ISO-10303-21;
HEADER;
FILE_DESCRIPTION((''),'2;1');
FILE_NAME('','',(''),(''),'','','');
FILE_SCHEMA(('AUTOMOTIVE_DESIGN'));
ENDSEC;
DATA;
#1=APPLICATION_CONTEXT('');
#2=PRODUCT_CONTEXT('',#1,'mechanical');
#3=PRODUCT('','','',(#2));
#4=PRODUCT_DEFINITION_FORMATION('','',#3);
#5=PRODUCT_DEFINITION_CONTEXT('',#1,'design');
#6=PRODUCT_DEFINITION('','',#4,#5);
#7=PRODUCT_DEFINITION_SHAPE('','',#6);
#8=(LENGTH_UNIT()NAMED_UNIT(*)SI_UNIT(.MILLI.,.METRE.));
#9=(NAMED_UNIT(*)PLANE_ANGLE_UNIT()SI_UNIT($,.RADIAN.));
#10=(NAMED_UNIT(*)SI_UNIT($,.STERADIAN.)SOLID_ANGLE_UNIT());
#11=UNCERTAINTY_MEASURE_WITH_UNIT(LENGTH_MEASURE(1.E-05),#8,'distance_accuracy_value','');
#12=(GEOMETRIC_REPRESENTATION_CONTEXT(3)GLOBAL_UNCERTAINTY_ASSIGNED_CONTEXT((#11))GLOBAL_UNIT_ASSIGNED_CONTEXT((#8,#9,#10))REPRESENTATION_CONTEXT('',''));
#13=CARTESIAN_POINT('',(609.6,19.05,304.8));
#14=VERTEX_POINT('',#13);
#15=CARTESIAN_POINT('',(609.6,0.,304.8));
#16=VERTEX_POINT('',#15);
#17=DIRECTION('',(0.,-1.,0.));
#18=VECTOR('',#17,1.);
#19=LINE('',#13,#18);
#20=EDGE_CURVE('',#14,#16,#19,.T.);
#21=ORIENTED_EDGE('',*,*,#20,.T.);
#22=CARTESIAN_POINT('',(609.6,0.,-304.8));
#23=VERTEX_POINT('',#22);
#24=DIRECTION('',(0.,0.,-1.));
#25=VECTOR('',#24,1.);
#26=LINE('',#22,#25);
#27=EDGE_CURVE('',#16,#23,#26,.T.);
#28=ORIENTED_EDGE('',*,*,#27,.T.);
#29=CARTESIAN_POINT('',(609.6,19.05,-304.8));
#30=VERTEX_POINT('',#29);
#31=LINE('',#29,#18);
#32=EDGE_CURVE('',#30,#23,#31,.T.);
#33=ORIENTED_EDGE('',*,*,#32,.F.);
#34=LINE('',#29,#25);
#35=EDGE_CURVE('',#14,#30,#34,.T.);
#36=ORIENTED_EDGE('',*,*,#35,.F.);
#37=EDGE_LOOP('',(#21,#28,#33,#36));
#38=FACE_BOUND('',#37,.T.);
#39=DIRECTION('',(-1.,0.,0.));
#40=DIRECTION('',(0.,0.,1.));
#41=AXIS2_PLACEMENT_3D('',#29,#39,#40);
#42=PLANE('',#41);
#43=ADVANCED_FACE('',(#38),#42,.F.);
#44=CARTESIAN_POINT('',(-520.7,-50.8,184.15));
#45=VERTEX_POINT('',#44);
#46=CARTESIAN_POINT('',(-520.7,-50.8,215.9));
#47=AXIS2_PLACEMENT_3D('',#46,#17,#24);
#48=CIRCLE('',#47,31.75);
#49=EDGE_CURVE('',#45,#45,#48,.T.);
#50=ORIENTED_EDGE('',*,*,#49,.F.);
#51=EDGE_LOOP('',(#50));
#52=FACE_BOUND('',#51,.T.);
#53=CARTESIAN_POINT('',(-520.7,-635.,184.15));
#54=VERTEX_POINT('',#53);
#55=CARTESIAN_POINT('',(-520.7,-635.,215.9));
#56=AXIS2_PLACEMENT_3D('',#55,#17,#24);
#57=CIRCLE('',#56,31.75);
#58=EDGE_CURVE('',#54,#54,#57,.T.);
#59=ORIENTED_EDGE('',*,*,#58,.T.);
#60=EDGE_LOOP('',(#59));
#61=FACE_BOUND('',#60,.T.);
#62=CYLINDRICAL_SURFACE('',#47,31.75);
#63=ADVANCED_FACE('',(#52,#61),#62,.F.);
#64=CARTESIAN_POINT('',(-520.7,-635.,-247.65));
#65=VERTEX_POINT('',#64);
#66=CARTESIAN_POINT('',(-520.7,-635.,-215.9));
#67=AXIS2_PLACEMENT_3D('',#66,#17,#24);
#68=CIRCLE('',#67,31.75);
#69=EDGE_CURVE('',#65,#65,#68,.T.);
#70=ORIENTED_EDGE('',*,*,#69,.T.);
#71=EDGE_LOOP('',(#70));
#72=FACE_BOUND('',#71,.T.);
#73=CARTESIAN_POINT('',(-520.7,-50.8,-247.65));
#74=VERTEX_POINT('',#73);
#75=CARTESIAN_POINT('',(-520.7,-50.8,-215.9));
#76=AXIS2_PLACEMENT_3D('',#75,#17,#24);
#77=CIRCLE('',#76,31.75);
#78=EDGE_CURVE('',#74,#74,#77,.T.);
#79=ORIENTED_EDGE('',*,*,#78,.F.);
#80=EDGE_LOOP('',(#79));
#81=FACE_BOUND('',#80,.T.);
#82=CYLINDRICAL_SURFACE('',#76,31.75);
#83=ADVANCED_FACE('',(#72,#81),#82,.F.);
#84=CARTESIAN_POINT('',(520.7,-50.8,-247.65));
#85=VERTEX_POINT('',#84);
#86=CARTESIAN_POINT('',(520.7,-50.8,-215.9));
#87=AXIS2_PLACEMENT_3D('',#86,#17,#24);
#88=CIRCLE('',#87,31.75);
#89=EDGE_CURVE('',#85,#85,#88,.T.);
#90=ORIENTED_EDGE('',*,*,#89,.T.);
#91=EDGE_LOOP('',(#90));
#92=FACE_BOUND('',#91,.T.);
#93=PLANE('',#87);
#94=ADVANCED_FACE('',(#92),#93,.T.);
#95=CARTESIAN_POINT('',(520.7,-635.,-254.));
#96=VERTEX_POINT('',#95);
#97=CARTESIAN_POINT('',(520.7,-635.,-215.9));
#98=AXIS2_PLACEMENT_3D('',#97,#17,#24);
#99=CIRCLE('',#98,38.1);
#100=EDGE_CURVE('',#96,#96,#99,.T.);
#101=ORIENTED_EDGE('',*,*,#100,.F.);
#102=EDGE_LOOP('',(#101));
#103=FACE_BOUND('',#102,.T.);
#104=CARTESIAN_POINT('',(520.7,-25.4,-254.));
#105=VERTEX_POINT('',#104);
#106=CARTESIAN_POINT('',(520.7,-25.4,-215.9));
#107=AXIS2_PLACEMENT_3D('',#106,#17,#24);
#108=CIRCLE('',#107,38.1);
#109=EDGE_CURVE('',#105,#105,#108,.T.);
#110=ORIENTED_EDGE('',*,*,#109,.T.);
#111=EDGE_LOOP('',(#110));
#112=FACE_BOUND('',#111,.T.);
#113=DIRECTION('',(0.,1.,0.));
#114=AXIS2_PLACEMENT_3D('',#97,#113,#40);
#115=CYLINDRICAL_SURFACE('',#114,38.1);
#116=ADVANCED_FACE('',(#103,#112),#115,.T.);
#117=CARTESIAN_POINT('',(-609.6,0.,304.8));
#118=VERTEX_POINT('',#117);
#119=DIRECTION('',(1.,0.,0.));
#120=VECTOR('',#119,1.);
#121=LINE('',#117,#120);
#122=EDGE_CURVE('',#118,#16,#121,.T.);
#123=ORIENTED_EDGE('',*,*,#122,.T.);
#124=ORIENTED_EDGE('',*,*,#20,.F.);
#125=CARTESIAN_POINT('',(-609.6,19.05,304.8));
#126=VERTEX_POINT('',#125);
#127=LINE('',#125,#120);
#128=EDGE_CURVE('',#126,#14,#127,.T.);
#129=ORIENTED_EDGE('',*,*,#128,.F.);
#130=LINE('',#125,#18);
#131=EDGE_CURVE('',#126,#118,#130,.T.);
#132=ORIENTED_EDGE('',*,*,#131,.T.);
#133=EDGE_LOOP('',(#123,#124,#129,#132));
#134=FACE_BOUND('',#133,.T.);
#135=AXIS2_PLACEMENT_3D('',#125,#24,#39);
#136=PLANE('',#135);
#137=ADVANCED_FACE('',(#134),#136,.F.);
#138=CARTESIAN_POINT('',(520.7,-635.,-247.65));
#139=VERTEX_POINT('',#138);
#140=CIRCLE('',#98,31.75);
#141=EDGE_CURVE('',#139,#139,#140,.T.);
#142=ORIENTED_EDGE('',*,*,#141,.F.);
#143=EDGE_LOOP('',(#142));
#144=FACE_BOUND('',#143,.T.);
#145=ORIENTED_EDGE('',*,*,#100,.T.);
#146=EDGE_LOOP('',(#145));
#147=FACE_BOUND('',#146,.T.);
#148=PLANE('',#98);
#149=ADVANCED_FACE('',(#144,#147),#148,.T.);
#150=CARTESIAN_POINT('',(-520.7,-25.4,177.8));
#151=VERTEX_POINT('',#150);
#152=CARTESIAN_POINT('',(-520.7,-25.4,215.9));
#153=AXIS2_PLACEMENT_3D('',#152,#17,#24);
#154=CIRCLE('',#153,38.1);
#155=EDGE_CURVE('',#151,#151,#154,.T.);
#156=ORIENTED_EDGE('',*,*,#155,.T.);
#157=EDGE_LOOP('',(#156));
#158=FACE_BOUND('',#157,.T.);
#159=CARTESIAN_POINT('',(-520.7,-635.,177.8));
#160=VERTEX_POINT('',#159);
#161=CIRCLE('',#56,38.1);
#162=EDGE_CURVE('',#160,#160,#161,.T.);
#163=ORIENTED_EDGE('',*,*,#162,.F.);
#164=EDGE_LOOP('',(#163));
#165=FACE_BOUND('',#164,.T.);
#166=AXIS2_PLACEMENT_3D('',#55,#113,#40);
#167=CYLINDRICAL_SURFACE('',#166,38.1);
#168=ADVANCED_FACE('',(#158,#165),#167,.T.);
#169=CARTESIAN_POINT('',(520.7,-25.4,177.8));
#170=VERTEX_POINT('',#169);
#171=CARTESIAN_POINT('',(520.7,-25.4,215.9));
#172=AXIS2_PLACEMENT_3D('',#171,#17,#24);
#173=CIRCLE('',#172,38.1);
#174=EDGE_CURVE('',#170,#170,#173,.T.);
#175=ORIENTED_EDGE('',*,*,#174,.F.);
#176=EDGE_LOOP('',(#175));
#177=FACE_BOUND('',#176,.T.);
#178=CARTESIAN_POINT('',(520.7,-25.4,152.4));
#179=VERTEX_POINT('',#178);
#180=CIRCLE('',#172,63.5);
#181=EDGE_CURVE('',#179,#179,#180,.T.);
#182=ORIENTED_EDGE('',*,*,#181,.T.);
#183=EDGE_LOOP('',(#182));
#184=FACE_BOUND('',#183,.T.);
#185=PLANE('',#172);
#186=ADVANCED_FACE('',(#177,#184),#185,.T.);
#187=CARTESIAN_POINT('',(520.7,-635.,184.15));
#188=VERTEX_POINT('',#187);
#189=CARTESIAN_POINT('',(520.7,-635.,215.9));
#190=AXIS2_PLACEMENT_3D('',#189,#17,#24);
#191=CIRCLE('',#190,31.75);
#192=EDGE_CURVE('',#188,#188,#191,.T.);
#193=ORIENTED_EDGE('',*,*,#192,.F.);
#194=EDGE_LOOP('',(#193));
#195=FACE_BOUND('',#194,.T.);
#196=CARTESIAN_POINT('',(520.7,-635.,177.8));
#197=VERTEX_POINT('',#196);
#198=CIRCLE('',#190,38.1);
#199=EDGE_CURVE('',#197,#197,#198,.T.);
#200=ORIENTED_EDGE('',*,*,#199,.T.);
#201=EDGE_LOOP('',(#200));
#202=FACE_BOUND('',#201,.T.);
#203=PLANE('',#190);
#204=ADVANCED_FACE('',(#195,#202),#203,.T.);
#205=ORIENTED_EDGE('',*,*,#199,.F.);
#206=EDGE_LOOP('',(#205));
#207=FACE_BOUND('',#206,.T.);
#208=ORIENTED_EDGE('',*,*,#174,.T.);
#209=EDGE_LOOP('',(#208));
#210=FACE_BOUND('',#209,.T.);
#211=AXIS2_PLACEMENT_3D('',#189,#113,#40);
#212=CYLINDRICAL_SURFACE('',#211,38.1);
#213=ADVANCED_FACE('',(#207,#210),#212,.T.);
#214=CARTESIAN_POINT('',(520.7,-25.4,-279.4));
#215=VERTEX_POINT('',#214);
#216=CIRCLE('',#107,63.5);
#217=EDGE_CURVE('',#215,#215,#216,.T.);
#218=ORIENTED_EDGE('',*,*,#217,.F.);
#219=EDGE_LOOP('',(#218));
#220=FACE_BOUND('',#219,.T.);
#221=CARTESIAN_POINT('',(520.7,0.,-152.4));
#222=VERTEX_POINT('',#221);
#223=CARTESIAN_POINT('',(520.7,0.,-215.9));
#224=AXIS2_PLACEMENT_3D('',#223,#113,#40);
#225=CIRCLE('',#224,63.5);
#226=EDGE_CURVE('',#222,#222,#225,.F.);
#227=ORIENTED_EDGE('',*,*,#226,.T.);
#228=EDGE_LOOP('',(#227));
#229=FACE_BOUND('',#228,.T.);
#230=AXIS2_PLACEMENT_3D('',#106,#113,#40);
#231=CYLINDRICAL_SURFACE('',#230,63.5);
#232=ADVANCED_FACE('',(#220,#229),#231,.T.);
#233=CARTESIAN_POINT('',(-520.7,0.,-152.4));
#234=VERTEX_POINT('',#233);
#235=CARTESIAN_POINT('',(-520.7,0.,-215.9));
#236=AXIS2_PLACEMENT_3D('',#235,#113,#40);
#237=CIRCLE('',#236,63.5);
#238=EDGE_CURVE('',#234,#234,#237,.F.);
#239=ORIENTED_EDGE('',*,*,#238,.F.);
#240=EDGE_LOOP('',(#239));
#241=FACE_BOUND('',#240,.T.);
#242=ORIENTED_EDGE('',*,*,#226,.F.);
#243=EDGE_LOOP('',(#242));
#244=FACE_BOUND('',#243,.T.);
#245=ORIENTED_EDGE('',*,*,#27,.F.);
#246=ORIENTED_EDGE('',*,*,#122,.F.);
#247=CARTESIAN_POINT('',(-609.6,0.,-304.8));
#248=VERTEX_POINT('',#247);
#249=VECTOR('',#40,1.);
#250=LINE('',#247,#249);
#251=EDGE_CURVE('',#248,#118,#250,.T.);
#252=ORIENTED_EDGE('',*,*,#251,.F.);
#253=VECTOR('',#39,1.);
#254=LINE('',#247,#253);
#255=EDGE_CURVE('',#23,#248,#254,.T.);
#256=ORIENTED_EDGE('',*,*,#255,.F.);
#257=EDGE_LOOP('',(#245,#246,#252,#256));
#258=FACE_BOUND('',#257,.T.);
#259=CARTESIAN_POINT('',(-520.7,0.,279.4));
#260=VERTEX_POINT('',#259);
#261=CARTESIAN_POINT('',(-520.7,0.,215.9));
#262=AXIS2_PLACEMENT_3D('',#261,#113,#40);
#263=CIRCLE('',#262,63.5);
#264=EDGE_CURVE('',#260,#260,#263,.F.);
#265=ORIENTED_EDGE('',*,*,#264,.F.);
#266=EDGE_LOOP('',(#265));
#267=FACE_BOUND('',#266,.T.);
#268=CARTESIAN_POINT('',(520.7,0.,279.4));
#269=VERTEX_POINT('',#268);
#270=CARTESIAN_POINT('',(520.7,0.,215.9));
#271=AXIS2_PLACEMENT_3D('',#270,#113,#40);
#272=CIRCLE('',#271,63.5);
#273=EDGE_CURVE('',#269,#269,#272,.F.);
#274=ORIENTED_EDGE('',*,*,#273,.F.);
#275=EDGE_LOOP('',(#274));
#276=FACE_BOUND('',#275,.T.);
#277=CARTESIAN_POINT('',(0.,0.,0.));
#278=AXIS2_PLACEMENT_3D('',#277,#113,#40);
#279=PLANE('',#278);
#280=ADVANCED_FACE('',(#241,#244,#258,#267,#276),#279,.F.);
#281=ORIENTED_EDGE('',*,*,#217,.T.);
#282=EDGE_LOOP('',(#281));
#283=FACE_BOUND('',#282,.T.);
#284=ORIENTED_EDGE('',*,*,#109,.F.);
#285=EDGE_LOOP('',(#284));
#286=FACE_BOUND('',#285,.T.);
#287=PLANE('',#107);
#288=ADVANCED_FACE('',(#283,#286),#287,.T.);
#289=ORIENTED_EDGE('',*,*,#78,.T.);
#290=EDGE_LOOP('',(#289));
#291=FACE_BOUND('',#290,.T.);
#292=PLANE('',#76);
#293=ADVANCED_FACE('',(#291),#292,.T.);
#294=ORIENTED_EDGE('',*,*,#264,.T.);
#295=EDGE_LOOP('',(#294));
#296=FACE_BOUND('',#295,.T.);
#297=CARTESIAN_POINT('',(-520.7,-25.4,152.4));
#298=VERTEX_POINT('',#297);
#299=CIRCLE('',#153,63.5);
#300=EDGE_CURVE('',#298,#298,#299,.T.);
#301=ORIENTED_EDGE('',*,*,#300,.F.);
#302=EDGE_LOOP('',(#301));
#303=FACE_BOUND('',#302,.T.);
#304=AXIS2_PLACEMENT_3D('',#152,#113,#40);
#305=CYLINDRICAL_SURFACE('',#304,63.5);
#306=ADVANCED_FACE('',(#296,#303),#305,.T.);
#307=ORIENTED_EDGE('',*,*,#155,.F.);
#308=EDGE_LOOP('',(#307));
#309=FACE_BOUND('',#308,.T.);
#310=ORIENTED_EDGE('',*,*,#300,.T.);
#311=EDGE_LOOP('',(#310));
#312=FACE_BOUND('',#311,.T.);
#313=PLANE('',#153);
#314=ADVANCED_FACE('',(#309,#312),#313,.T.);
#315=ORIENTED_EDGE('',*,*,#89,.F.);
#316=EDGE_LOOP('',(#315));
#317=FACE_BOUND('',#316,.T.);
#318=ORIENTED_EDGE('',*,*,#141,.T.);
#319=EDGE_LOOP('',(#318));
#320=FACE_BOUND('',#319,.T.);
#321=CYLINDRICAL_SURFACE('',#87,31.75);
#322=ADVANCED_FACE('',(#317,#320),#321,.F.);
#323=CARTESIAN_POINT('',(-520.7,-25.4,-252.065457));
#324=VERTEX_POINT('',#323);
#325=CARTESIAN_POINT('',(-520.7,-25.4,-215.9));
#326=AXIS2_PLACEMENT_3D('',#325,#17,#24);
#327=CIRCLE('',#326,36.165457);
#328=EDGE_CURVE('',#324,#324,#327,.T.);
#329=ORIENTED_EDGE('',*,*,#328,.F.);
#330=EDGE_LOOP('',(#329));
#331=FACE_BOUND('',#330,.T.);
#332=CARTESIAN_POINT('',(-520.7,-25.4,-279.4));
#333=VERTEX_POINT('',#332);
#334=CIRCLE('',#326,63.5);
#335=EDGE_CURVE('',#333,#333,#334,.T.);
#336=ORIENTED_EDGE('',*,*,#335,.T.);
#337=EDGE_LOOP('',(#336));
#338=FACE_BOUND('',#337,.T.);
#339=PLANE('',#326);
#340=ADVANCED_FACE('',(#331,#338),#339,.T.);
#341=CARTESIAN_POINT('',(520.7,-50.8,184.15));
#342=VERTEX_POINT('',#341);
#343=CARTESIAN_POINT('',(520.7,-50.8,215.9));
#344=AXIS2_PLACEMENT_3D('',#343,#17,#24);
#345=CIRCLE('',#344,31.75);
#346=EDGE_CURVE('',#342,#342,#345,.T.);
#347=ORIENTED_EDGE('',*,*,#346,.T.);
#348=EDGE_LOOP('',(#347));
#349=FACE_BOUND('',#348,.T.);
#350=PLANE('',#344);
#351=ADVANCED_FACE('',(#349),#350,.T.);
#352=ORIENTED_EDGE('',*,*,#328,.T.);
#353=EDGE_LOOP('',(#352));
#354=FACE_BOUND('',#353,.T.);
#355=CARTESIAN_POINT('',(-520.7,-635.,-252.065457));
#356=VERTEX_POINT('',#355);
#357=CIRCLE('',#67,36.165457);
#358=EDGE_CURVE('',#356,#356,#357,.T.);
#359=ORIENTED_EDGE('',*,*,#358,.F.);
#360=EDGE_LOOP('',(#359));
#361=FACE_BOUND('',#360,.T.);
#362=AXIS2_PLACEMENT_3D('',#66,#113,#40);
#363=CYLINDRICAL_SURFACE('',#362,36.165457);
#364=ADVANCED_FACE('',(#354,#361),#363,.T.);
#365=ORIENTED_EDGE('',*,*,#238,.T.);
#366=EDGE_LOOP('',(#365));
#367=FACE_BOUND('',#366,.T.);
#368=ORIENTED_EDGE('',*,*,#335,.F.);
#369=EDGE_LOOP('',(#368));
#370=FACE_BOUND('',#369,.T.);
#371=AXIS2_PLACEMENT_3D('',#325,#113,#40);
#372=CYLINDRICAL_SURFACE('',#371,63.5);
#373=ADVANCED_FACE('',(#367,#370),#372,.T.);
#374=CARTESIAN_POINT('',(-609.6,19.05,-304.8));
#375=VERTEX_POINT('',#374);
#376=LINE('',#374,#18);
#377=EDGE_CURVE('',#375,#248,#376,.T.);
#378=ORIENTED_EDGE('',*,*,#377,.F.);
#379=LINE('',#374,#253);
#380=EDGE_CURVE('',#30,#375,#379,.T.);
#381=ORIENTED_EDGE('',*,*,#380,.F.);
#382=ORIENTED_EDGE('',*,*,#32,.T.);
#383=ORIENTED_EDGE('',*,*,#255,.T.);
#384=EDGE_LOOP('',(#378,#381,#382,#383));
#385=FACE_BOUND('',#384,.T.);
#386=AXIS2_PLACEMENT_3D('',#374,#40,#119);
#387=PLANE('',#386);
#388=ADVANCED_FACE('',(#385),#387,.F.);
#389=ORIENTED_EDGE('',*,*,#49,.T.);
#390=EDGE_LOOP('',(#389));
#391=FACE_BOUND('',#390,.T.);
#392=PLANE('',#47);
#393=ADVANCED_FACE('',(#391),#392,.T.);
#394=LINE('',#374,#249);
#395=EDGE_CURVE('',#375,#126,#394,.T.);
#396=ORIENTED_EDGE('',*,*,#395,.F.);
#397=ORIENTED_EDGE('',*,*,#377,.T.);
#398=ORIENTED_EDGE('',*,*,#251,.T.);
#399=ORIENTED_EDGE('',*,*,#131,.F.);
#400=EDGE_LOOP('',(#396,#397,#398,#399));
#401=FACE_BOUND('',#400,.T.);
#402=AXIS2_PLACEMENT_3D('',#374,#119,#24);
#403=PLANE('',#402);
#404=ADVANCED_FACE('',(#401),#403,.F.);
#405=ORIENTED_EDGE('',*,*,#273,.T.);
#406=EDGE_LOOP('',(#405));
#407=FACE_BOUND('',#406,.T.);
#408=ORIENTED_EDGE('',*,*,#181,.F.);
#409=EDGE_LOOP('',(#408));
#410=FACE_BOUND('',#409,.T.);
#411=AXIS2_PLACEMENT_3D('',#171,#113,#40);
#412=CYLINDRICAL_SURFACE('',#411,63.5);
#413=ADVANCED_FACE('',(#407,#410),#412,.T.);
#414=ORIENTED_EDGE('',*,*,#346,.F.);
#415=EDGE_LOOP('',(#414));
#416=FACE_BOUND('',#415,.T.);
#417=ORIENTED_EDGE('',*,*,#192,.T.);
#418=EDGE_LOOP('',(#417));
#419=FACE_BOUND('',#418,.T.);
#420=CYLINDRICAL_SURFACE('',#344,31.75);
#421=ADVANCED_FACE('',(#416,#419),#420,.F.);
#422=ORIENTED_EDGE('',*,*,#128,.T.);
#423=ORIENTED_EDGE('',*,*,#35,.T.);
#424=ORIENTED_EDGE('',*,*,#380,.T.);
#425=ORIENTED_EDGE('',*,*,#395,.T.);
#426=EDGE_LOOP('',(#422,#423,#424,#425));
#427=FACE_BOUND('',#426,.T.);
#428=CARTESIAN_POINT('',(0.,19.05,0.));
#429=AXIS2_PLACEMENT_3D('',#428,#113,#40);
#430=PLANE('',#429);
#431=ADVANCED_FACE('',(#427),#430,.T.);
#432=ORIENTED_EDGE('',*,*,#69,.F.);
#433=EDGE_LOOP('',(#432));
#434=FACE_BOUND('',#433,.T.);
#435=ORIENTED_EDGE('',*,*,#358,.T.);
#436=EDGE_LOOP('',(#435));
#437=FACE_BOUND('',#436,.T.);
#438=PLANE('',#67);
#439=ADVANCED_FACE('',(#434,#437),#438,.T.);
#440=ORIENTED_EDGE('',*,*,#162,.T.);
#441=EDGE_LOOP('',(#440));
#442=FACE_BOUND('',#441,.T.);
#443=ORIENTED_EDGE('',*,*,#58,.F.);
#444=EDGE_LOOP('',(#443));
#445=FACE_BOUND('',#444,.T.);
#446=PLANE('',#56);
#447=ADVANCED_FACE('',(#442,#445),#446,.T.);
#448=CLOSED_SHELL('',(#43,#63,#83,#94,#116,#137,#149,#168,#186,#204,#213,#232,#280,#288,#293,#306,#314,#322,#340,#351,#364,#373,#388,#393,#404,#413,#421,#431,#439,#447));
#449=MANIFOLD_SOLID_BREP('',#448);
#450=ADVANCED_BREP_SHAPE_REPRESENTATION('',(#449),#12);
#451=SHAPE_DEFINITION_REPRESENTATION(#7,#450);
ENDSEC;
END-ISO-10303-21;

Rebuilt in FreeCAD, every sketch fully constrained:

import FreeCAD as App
import Part
import Sketcher
from FreeCAD import Vector
Q = App.Units.Quantity

doc = App.newDocument("Part")
body = doc.addObject("PartDesign::Body", "Body")

sketch1 = body.newObject("Sketcher::SketchObject", "Sketch")
sketch1.AttachmentSupport = (doc.getObject("XZ_Plane"), [""])
sketch1.MapMode = "FlatFace"
sketch1.addGeometry([
    Part.LineSegment(Vector(-610, -305, 0), Vector(-610, 305, 0)),
    Part.LineSegment(Vector(-610, 305, 0), Vector(610, 305, 0)),
    Part.LineSegment(Vector(610, 305, 0), Vector(610, -305, 0)),
    Part.LineSegment(Vector(610, -305, 0), Vector(-610, -305, 0)),
], False)
sketch1.addConstraint([
    Sketcher.Constraint("Coincident", 0, 2, 1, 1),
    Sketcher.Constraint("Coincident", 1, 2, 2, 1),
    Sketcher.Constraint("Coincident", 2, 2, 3, 1),
    Sketcher.Constraint("Coincident", 3, 2, 0, 1),
    Sketcher.Constraint("Vertical", 0),
    Sketcher.Constraint("Horizontal", 1),
    Sketcher.Constraint("Vertical", 2),
    Sketcher.Constraint("Horizontal", 3),
    Sketcher.Constraint("Symmetric", 0, 2, 2, 2, -1, 1),
    Sketcher.Constraint("DistanceX", 1, 1, 1, 2, Q("48 in")),
    Sketcher.Constraint("DistanceY", 0, 1, 0, 2, Q("24 in")),
])
pad1 = body.newObject("PartDesign::Pad", "Pad")
pad1.Profile = sketch1
pad1.Length = Q("0.75 in")
pad1.Reversed = True

sketch2 = body.newObject("Sketcher::SketchObject", "Sketch001")
sketch2.AttachmentSupport = (doc.getObject("XZ_Plane"), [""])
sketch2.MapMode = "FlatFace"
sketch2.addGeometry([
    Part.Circle(Vector(-521, 216, 0), Vector(0, 0, 1), 64),
    Part.Circle(Vector(-521, -216, 0), Vector(0, 0, 1), 64),
    Part.Circle(Vector(521, 216, 0), Vector(0, 0, 1), 64),
    Part.Circle(Vector(521, -216, 0), Vector(0, 0, 1), 64),
], False)
sketch2.addConstraint([
    Sketcher.Constraint("Equal", 0, 1),
    Sketcher.Constraint("Equal", 1, 2),
    Sketcher.Constraint("Equal", 2, 3),
    Sketcher.Constraint("Symmetric", 1, 3, 2, 3, -1, 1),
    Sketcher.Constraint("Symmetric", 0, 3, 3, 3, -1, 1),
    Sketcher.Constraint("Symmetric", 0, 3, 2, 3, -2),
    Sketcher.Constraint("Diameter", 0, Q("5 in")),
    Sketcher.Constraint("DistanceY", 1, 3, 0, 3, Q("17 in")),
    Sketcher.Constraint("DistanceX", 0, 3, 2, 3, Q("41 in")),
])
pad2 = body.newObject("PartDesign::Pad", "Pad001")
pad2.Profile = sketch2
pad2.Length = Q("1 in")

sketch3 = body.newObject("Sketcher::SketchObject", "Sketch002")
sketch3.AttachmentSupport = (doc.getObject("XZ_Plane"), [""])
sketch3.MapMode = "FlatFace"
sketch3.AttachmentOffset = App.Placement(Vector(0, 0, 1 * 25.4), App.Rotation())
sketch3.addGeometry([
    Part.Circle(Vector(-521, 216, 0), Vector(0, 0, 1), 38),
    Part.Circle(Vector(-521, -216, 0), Vector(0, 0, 1), 36),
    Part.Circle(Vector(521, 216, 0), Vector(0, 0, 1), 38),
    Part.Circle(Vector(521, -216, 0), Vector(0, 0, 1), 38),
], False)
sketch3.addConstraint([
    Sketcher.Constraint("Equal", 0, 2),
    Sketcher.Constraint("Equal", 2, 3),
    Sketcher.Constraint("Symmetric", 1, 3, 2, 3, -1, 1),
    Sketcher.Constraint("Symmetric", 0, 3, 3, 3, -1, 1),
    Sketcher.Constraint("Symmetric", 0, 3, 2, 3, -2),
    Sketcher.Constraint("Diameter", 0, Q("3 in")),
    Sketcher.Constraint("DistanceY", 1, 3, 0, 3, Q("17 in")),
    Sketcher.Constraint("DistanceX", 0, 3, 2, 3, Q("41 in")),
    Sketcher.Constraint("Diameter", 1, 72.330914),
])
pad3 = body.newObject("PartDesign::Pad", "Pad002")
pad3.Profile = sketch3
pad3.Length = Q("24 in")

sketch4 = body.newObject("Sketcher::SketchObject", "Sketch003")
sketch4.AttachmentSupport = (doc.getObject("XZ_Plane"), [""])
sketch4.MapMode = "FlatFace"
sketch4.AttachmentOffset = App.Placement(Vector(0, 0, 25 * 25.4), App.Rotation())
sketch4.addGeometry([
    Part.Circle(Vector(-521, 216, 0), Vector(0, 0, 1), 32),
    Part.Circle(Vector(521, 216, 0), Vector(0, 0, 1), 32),
    Part.Circle(Vector(521, -216, 0), Vector(0, 0, 1), 32),
    Part.Circle(Vector(-521, -216, 0), Vector(0, 0, 1), 32),
], False)
sketch4.addConstraint([
    Sketcher.Constraint("Equal", 0, 1),
    Sketcher.Constraint("Equal", 1, 2),
    Sketcher.Constraint("Equal", 2, 3),
    Sketcher.Constraint("Symmetric", 0, 3, 2, 3, -1, 1),
    Sketcher.Constraint("Symmetric", 1, 3, 3, 3, -1, 1),
    Sketcher.Constraint("Symmetric", 0, 3, 1, 3, -2),
    Sketcher.Constraint("Diameter", 0, Q("2.5 in")),
    Sketcher.Constraint("DistanceX", 0, 3, 1, 3, Q("41 in")),
    Sketcher.Constraint("DistanceY", 2, 3, 1, 3, Q("17 in")),
])
pocket1 = body.newObject("PartDesign::Pocket", "Pocket")
pocket1.Profile = sketch4
pocket1.Length = Q("23 in")

doc.recompute()
